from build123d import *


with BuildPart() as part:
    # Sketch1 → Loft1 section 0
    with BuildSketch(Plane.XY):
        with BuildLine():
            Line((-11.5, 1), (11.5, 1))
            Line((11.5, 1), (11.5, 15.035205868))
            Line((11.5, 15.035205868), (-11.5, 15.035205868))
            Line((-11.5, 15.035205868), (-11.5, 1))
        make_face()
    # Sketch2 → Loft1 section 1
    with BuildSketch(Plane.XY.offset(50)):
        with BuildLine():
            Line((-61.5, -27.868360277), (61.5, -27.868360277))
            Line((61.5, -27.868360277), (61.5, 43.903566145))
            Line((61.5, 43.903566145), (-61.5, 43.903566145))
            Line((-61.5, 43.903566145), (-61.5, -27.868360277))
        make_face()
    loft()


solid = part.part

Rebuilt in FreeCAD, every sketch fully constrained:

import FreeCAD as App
import Part
import Sketcher
from FreeCAD import Vector

doc = App.newDocument("Part")
body = doc.addObject("PartDesign::Body", "Body")

# Sketch on XY plane
sketch1 = body.newObject("Sketcher::SketchObject", "Sketch")
sketch1.AttachmentSupport = (doc.getObject("XY_Plane"), [""])
sketch1.MapMode = "FlatFace"
sketch1.addGeometry([
    Part.LineSegment(Vector(-11.5, 1, 0), Vector(11.5, 1, 0)),
    Part.LineSegment(Vector(11.5, 1, 0), Vector(11.5, 15.035206, 0)),
    Part.LineSegment(Vector(11.5, 15.035206, 0), Vector(-11.5, 15.035206, 0)),
    Part.LineSegment(Vector(-11.5, 15.035206, 0), Vector(-11.5, 1, 0)),
], False)
sketch1.addConstraint([
    Sketcher.Constraint("Coincident", 0, 2, 1, 1),
    Sketcher.Constraint("Coincident", 1, 2, 2, 1),
    Sketcher.Constraint("Coincident", 2, 2, 3, 1),
    Sketcher.Constraint("Coincident", 3, 2, 0, 1),
    Sketcher.Constraint("Horizontal", 0),
    Sketcher.Constraint("Vertical", 1),
    Sketcher.Constraint("Horizontal", 2),
    Sketcher.Constraint("Vertical", 3),
    Sketcher.Constraint("DistanceX", 0, 1, 0, 2, 23.0),
    Sketcher.Constraint("DistanceY", -1, 1, 0, 2, 1.0),
    Sketcher.Constraint("DistanceX", -1, 1, 0, 2, 11.5),
    Sketcher.Constraint("DistanceY", 1, 1, 1, 2, 14.035206),
])

# Sketch on XY plane
sketch2 = body.newObject("Sketcher::SketchObject", "Sketch001")
sketch2.AttachmentSupport = (doc.getObject("XY_Plane"), [""])
sketch2.MapMode = "FlatFace"
sketch2.AttachmentOffset = App.Placement(Vector(0, 0, 50), App.Rotation())
sketch2.addGeometry([
    Part.LineSegment(Vector(-61.5, -27.86836, 0), Vector(61.5, -27.86836, 0)),
    Part.LineSegment(Vector(61.5, -27.86836, 0), Vector(61.5, 43.903566, 0)),
    Part.LineSegment(Vector(61.5, 43.903566, 0), Vector(-61.5, 43.903566, 0)),
    Part.LineSegment(Vector(-61.5, 43.903566, 0), Vector(-61.5, -27.86836, 0)),
], False)
sketch2.addConstraint([
    Sketcher.Constraint("Coincident", 0, 2, 1, 1),
    Sketcher.Constraint("Coincident", 1, 2, 2, 1),
    Sketcher.Constraint("Coincident", 2, 2, 3, 1),
    Sketcher.Constraint("Coincident", 3, 2, 0, 1),
    Sketcher.Constraint("Horizontal", 0),
    Sketcher.Constraint("Vertical", 1),
    Sketcher.Constraint("Horizontal", 2),
    Sketcher.Constraint("Vertical", 3),
    Sketcher.Constraint("DistanceX", 0, 1, 0, 2, 123.0),
    Sketcher.Constraint("DistanceX", -1, 1, 0, 2, 61.5),
    Sketcher.Constraint("DistanceY", 1, 1, 1, 2, 71.771926),
    Sketcher.Constraint("DistanceY", 0, 2, -1, 1, 27.86836),
])

additiveloft = body.newObject("PartDesign::AdditiveLoft", "AdditiveLoft")
additiveloft.Profile = sketch1
additiveloft.Sections = [sketch2]

doc.recompute()
